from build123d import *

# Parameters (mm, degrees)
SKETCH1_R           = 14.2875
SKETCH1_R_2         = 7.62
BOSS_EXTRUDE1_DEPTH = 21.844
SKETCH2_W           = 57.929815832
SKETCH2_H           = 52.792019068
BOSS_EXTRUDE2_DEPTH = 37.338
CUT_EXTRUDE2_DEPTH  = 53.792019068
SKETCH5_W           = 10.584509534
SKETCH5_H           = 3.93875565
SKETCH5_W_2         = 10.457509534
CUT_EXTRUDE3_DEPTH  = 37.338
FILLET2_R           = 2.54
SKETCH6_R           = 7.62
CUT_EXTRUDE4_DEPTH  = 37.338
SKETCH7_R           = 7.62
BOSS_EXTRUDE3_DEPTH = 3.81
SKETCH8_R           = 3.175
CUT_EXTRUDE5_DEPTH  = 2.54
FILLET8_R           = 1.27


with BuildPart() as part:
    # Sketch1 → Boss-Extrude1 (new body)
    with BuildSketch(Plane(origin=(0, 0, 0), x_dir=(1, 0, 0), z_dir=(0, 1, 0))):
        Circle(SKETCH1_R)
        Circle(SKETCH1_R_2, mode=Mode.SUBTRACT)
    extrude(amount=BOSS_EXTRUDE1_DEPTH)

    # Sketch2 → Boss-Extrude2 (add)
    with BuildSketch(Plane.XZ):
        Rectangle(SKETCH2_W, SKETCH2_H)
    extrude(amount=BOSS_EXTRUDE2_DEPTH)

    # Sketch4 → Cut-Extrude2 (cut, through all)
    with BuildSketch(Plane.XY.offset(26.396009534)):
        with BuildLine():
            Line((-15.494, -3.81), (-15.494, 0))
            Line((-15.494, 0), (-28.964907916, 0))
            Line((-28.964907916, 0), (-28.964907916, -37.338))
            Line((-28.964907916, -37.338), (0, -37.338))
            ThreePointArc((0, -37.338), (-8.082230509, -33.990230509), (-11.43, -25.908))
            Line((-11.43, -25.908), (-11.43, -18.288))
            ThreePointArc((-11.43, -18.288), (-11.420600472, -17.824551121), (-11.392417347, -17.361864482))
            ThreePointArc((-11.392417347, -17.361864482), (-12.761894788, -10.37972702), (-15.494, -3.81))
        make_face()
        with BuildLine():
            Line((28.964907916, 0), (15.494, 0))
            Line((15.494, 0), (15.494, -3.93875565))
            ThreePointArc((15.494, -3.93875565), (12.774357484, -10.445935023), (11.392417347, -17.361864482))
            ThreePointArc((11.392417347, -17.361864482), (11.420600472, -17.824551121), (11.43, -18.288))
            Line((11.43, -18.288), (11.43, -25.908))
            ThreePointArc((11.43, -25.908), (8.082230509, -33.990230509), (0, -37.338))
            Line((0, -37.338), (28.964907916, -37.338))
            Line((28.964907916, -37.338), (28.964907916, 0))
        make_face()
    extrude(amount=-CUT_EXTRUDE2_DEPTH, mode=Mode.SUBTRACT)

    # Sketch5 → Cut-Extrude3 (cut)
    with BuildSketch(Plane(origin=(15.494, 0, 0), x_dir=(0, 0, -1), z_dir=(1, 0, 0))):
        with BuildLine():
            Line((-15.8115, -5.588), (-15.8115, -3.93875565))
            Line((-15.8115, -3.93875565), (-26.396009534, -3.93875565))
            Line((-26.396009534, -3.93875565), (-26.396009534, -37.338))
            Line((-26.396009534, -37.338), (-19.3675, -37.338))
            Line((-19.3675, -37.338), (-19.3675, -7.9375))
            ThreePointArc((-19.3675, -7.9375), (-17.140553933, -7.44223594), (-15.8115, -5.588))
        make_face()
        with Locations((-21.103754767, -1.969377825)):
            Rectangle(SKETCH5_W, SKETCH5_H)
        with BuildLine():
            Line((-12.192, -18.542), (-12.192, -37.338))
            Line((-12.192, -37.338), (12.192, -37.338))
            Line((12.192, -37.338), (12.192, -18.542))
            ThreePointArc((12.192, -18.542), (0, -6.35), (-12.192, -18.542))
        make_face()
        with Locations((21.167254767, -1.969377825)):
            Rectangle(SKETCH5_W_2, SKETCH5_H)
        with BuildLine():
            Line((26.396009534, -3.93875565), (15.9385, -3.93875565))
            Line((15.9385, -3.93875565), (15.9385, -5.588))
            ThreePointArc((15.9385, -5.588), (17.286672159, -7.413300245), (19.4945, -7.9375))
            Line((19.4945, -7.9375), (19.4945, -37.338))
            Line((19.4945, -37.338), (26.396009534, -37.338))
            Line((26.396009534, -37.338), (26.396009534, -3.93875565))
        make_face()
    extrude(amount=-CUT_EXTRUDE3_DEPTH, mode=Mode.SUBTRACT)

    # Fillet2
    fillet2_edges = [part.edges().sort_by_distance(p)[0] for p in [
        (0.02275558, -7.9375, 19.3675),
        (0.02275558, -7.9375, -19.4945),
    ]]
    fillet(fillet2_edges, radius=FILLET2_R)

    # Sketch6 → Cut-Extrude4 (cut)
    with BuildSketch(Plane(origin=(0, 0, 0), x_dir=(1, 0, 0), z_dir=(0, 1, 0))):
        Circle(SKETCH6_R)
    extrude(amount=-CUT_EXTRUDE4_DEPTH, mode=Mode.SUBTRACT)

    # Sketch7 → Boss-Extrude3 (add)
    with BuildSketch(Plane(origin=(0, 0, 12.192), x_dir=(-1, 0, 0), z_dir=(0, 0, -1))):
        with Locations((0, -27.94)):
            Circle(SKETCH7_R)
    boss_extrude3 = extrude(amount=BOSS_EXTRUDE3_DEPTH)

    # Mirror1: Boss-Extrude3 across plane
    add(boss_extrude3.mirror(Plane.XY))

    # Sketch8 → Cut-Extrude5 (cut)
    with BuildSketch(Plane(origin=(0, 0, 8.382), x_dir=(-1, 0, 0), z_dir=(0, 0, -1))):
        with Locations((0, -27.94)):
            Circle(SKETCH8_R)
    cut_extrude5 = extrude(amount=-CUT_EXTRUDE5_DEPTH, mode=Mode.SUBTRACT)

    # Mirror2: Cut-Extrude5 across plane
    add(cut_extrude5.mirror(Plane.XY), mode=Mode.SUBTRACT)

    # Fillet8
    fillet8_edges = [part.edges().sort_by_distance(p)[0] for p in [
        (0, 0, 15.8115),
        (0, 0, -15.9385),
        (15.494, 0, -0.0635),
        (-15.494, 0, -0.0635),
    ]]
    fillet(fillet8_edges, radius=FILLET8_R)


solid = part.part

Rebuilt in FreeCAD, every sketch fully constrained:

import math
import FreeCAD as App
import Part
import Sketcher
from FreeCAD import Vector
Q = App.Units.Quantity


def edges_at(feature, points):
    """Names of the edges that pass closest to the given points."""
    edges = feature.Shape.Edges
    near = lambda p: min(range(len(edges)), key=lambda i: edges[i].distToShape(Part.Vertex(*p))[0])
    return sorted({f"Edge{near(p) + 1}" for p in points})

doc = App.newDocument("Part")
body = doc.addObject("PartDesign::Body", "Body")

sketch1 = body.newObject("Sketcher::SketchObject", "Sketch")
sketch1.AttachmentSupport = (doc.getObject("XZ_Plane"), [""])
sketch1.MapMode = "FlatFace"
sketch1.addGeometry([
    Part.Circle(Vector(0, 0, 0), Vector(0, 0, 1), 14),
    Part.Circle(Vector(0, 0, 0), Vector(0, 0, 1), 8),
], False)
sketch1.addConstraint([
    Sketcher.Constraint("Coincident", 0, 3, -1, 1),
    Sketcher.Constraint("Coincident", 1, 3, -1, 1),
    Sketcher.Constraint("Diameter", 1, Q("0.6 in")),
    Sketcher.Constraint("Diameter", 0, Q("1.125 in")),
])
pad1 = body.newObject("PartDesign::Pad", "Pad")
pad1.Profile = sketch1
pad1.Length = Q("0.86 in")
pad1.Reversed = True

sketch2 = body.newObject("Sketcher::SketchObject", "Sketch001")
sketch2.AttachmentSupport = (doc.getObject("XZ_Plane"), [""])
sketch2.MapMode = "FlatFace"
sketch2.addGeometry([
    Part.LineSegment(Vector(-29, 26, 0), Vector(-29, -26, 0)),
    Part.LineSegment(Vector(-29, -26, 0), Vector(29, -26, 0)),
    Part.LineSegment(Vector(29, -26, 0), Vector(29, 26, 0)),
    Part.LineSegment(Vector(29, 26, 0), Vector(-29, 26, 0)),
], False)
sketch2.addConstraint([
    Sketcher.Constraint("Coincident", 0, 2, 1, 1),
    Sketcher.Constraint("Coincident", 1, 2, 2, 1),
    Sketcher.Constraint("Coincident", 2, 2, 3, 1),
    Sketcher.Constraint("Coincident", 3, 2, 0, 1),
    Sketcher.Constraint("Vertical", 0),
    Sketcher.Constraint("Horizontal", 1),
    Sketcher.Constraint("Vertical", 2),
    Sketcher.Constraint("Horizontal", 3),
    Sketcher.Constraint("Symmetric", 0, 2, 2, 2, -1, 1),
    Sketcher.Constraint("DistanceY", 0, 2, 0, 1, 52.792019),
    Sketcher.Constraint("DistanceX", 1, 1, 1, 2, 57.929816),
])
pad2 = body.newObject("PartDesign::Pad", "Pad001")
pad2.Profile = sketch2
pad2.Length = Q("1.47 in")

sketch3 = body.newObject("Sketcher::SketchObject", "Sketch002")
sketch3.AttachmentSupport = (doc.getObject("XY_Plane"), [""])
sketch3.MapMode = "FlatFace"
sketch3.AttachmentOffset = App.Placement(Vector(0, 0, 26.39601), App.Rotation())
sketch3.addGeometry([
    Part.LineSegment(Vector(-15.5, -3.8, 0), Vector(-15.5, 0, 0)),
    Part.LineSegment(Vector(-15.5, 0, 0), Vector(-29, 0, 0)),
    Part.LineSegment(Vector(-29, 0, 0), Vector(-29, -37.3, 0)),
    Part.LineSegment(Vector(-29, -37.3, 0), Vector(0, -37.3, 0)),
    Part.ArcOfCircle(Part.Circle(Vector(0, -25.9, 0), Vector(0, 0, 1), 11.4), math.radians(180), math.radians(270)),
    Part.LineSegment(Vector(-11.4, -25.9, 0), Vector(-11.4, -18.3, 0)),
    Part.ArcOfCircle(Part.Circle(Vector(0, -18.3, 0), Vector(0, 0, 1), 11.4), math.radians(175.35), math.radians(180)),
    Part.ArcOfCircle(Part.Circle(Vector(-46.8, -20.7, 0), Vector(0, 0, 1), 35.6), math.radians(5), math.radians(28)),
    Part.LineSegment(Vector(29, 0, 0), Vector(15.5, 0, 0)),
    Part.LineSegment(Vector(15.5, 0, 0), Vector(15.5, -3.9, 0)),
    Part.ArcOfCircle(Part.Circle(Vector(46.8, -20.8, 0), Vector(0, 0, 1), 35.6), math.radians(152), math.radians(174)),
    Part.ArcOfCircle(Part.Circle(Vector(0, -18.3, 0), Vector(0, 0, 1), 11.4), math.radians(0), math.radians(4.65)),
    Part.LineSegment(Vector(11.4, -18.3, 0), Vector(11.4, -25.9, 0)),
    Part.ArcOfCircle(Part.Circle(Vector(0, -25.9, 0), Vector(0, 0, 1), 11.4), math.radians(-90), math.radians(0)),
    Part.LineSegment(Vector(0, -37.3, 0), Vector(29, -37.3, 0)),
    Part.LineSegment(Vector(29, -37.3, 0), Vector(29, 0, 0)),
], False)
sketch3.addConstraint([
    Sketcher.Constraint("Coincident", 0, 2, 1, 1),
    Sketcher.Constraint("Coincident", 1, 2, 2, 1),
    Sketcher.Constraint("Coincident", 2, 2, 3, 1),
    Sketcher.Constraint("Tangent", 3, 2, 4, 2),
    Sketcher.Constraint("Tangent", 4, 1, 5, 1),
    Sketcher.Constraint("Tangent", 5, 2, 6, 2),
    Sketcher.Constraint("Coincident", 6, 1, 7, 1),
    Sketcher.Constraint("Coincident", 7, 2, 0, 1),
    Sketcher.Constraint("Coincident", 8, 2, 9, 1),
    Sketcher.Constraint("Coincident", 9, 2, 10, 1),
    Sketcher.Constraint("Coincident", 10, 2, 11, 2),
    Sketcher.Constraint("Tangent", 11, 1, 12, 1),
    Sketcher.Constraint("Tangent", 12, 2, 13, 2),
    Sketcher.Constraint("Tangent", 13, 1, 14, 1),
    Sketcher.Constraint("Coincident", 14, 2, 15, 1),
    Sketcher.Constraint("Coincident", 15, 2, 8, 1),
    Sketcher.Constraint("Vertical", 0),
    Sketcher.Constraint("Horizontal", 1),
    Sketcher.Constraint("Vertical", 2),
    Sketcher.Constraint("Horizontal", 3),
    Sketcher.Constraint("Vertical", 5),
    Sketcher.Constraint("Horizontal", 8),
    Sketcher.Constraint("Vertical", 9),
    Sketcher.Constraint("Vertical", 12),
    Sketcher.Constraint("Horizontal", 14),
    Sketcher.Constraint("Vertical", 15),
    Sketcher.Constraint("Coincident", 11, 3, 6, 3),
    Sketcher.Constraint("Coincident", 13, 3, 4, 3),
    Sketcher.Constraint("Equal", 4, 6),
    Sketcher.Constraint("Equal", 7, 10),
    Sketcher.Constraint("Equal", 6, 11),
    Sketcher.Constraint("Symmetric", 0, 2, 8, 2, -1, 1),
    Sketcher.Constraint("Symmetric", 6, 1, 10, 2, -2),
    Sketcher.Constraint("Symmetric", 1, 2, 15, 2, -2),
    Sketcher.Constraint("Radius", 7, Q("1.4 in")),
    Sketcher.Constraint("Radius", 4, Q("0.45 in")),
    Sketcher.Constraint("DistanceY", 5, 1, 5, 2, Q("0.3 in")),
    Sketcher.Constraint("DistanceY", 0, 1, 0, 2, Q("0.15 in")),
    Sketcher.Constraint("DistanceY", 2, 2, 2, 1, Q("1.47 in")),
    Sketcher.Constraint("DistanceX", 0, 2, -1, 1, Q("0.61 in")),
    Sketcher.Constraint("DistanceX", 1, 2, 1, 1, 13.470908),
    Sketcher.Constraint("DistanceY", 9, 2, 9, 1, 3.938756),
    Sketcher.Constraint("DistanceY", 7, 3, -1, 1, 20.680789),
])
pocket1 = body.newObject("PartDesign::Pocket", "Pocket")
pocket1.Profile = sketch3
pocket1.Type = "ThroughAll"

sketch4 = body.newObject("Sketcher::SketchObject", "Sketch003")
sketch4.AttachmentSupport = (doc.getObject("YZ_Plane"), [""])
sketch4.MapMode = "FlatFace"
sketch4.AttachmentOffset = App.Placement(Vector(0, 0, 0.61 * 25.4), App.Rotation())
sketch4.addGeometry([
    Part.LineSegment(Vector(-5.6, 15.8, 0), Vector(0, 15.8, 0)),
    Part.LineSegment(Vector(0, 15.8, 0), Vector(0, 26.4, 0)),
    Part.LineSegment(Vector(0, 26.4, 0), Vector(-37.3, 26.4, 0)),
    Part.LineSegment(Vector(-37.3, 26.4, 0), Vector(-37.3, 19.4, 0)),
    Part.LineSegment(Vector(-37.3, 19.4, 0), Vector(-7.9, 19.4, 0)),
    Part.ArcOfCircle(Part.Circle(Vector(-4.8, 18.9, 0), Vector(0, 0, 1), 3.2), math.radians(172), math.radians(255)),
    Part.LineSegment(Vector(-18.5, 12.2, 0), Vector(-37.3, 12.2, 0)),
    Part.LineSegment(Vector(-37.3, 12.2, 0), Vector(-37.3, -12.2, 0)),
    Part.LineSegment(Vector(-37.3, -12.2, 0), Vector(-18.5, -12.2, 0)),
    Part.ArcOfCircle(Part.Circle(Vector(-18.5, 0, 0), Vector(0, 0, 1), 12.2), math.radians(-90), math.radians(90)),
    Part.LineSegment(Vector(0, -15.9, 0), Vector(-5.6, -15.9, 0)),
    Part.ArcOfCircle(Part.Circle(Vector(-4.7, -19.1, 0), Vector(0, 0, 1), 3.3), math.radians(106), math.radians(187)),
    Part.LineSegment(Vector(-7.9, -19.5, 0), Vector(-37.3, -19.5, 0)),
    Part.LineSegment(Vector(-37.3, -19.5, 0), Vector(-37.3, -26.4, 0)),
    Part.LineSegment(Vector(-37.3, -26.4, 0), Vector(0, -26.4, 0)),
    Part.LineSegment(Vector(0, -26.4, 0), Vector(0, -15.9, 0)),
], False)
sketch4.addConstraint([
    Sketcher.Constraint("Coincident", 0, 2, 1, 1),
    Sketcher.Constraint("Coincident", 1, 2, 2, 1),
    Sketcher.Constraint("Coincident", 2, 2, 3, 1),
    Sketcher.Constraint("Coincident", 3, 2, 4, 1),
    Sketcher.Constraint("Coincident", 4, 2, 5, 1),
    Sketcher.Constraint("Coincident", 5, 2, 0, 1),
    Sketcher.Constraint("Coincident", 6, 2, 7, 1),
    Sketcher.Constraint("Coincident", 7, 2, 8, 1),
    Sketcher.Constraint("Tangent", 8, 2, 9, 1),
    Sketcher.Constraint("Tangent", 9, 2, 6, 1),
    Sketcher.Constraint("Coincident", 10, 2, 11, 1),
    Sketcher.Constraint("Coincident", 11, 2, 12, 1),
    Sketcher.Constraint("Coincident", 12, 2, 13, 1),
    Sketcher.Constraint("Coincident", 13, 2, 14, 1),
    Sketcher.Constraint("Coincident", 14, 2, 15, 1),
    Sketcher.Constraint("Coincident", 15, 2, 10, 1),
    Sketcher.Constraint("Horizontal", 0),
    Sketcher.Constraint("Vertical", 1),
    Sketcher.Constraint("Horizontal", 2),
    Sketcher.Constraint("Vertical", 3),
    Sketcher.Constraint("Horizontal", 4),
    Sketcher.Constraint("Horizontal", 6),
    Sketcher.Constraint("Vertical", 7),
    Sketcher.Constraint("Horizontal", 8),
    Sketcher.Constraint("Horizontal", 10),
    Sketcher.Constraint("Horizontal", 12),
    Sketcher.Constraint("Vertical", 13),
    Sketcher.Constraint("Horizontal", 14),
    Sketcher.Constraint("Vertical", 15),
    Sketcher.Constraint("Symmetric", 1, 2, 14, 2, -1, 1),
    Sketcher.Constraint("PointOnObject", 9, 3, -1),
    Sketcher.Constraint("PointOnObject", 0, 2, -2),
    Sketcher.Constraint("Vertical", 3, 2, 6, 2),
    Sketcher.Constraint("Vertical", 5, 2, 10, 2),
    Sketcher.Constraint("Vertical", 4, 2, 11, 2),
    Sketcher.Constraint("Vertical", 7, 2, 12, 2),
    Sketcher.Constraint("Radius", 9, Q("0.48 in")),
    Sketcher.Constraint("Radius", 11, Q("0.13 in")),
    Sketcher.Constraint("DistanceX", 0, 1, 0, 2, Q("0.22 in")),
    Sketcher.Constraint("DistanceX", 2, 2, 2, 1, Q("1.47 in")),
    Sketcher.Constraint("DistanceX", 6, 2, 6, 1, Q("0.74 in")),
    Sketcher.Constraint("DistanceY", 0, 2, 3, 2, Q("0.14 in")),
    Sketcher.Constraint("DistanceY", 10, 2, 5, 2, Q("1.25 in")),
    Sketcher.Constraint("DistanceY", 11, 2, 10, 2, Q("0.14 in")),
    Sketcher.Constraint("DistanceX", 4, 1, 4, 2, Q("1.1575 in")),
    Sketcher.Constraint("Radius", 5, 3.195328),
    Sketcher.Constraint("DistanceY", -1, 1, 0, 2, Q("0.6225 in")),
    Sketcher.Constraint("DistanceY", 1, 1, 1, 2, 10.58451),
])
pocket2 = body.newObject("PartDesign::Pocket", "Pocket001")
pocket2.Profile = sketch4
pocket2.Length = Q("1.47 in")
doc.recompute()

fillet = body.newObject("PartDesign::Fillet", "Fillet")
fillet.Base = (pocket2, edges_at(pocket2, [(0.023, -7.938, 19.367), (0.023, -7.938, -19.494)]))
fillet.Radius = Q("0.1 in")

sketch5 = body.newObject("Sketcher::SketchObject", "Sketch004")
sketch5.AttachmentSupport = (doc.getObject("XZ_Plane"), [""])
sketch5.MapMode = "FlatFace"
sketch5.addGeometry(Part.Circle(Vector(0, 0, 0), Vector(0, 0, 1), 8), False)
sketch5.addConstraint([
    Sketcher.Constraint("Coincident", 0, 3, -1, 1),
    Sketcher.Constraint("Diameter", 0, Q("0.6 in")),
])
pocket3 = body.newObject("PartDesign::Pocket", "Pocket002")
pocket3.Profile = sketch5
pocket3.Length = Q("1.47 in")
pocket3.Reversed = True

sketch6 = body.newObject("Sketcher::SketchObject", "Sketch005")
sketch6.AttachmentSupport = (doc.getObject("XY_Plane"), [""])
sketch6.MapMode = "FlatFace"
sketch6.AttachmentOffset = App.Placement(Vector(0, 0, 0.48 * 25.4), App.Rotation())
sketch6.addGeometry(Part.Circle(Vector(0, -28, 0), Vector(0, 0, 1), 8), False)
sketch6.addConstraint([
    Sketcher.Constraint("PointOnObject", 0, 3, -2),
    Sketcher.Constraint("Diameter", 0, Q("0.6 in")),
    Sketcher.Constraint("DistanceY", 0, 3, -1, 1, Q("1.1 in")),
])
pad3 = body.newObject("PartDesign::Pad", "Pad002")
pad3.Profile = sketch6
pad3.Length = Q("0.15 in")
pad3.Reversed = True
doc.recompute()

mirrored = body.newObject("PartDesign::Mirrored", "Mirrored")
mirrored.Originals = [pad3]
mirrored.MirrorPlane = (doc.getObject("XY_Plane"), [""])
body.Tip = mirrored

sketch7 = body.newObject("Sketcher::SketchObject", "Sketch006")
sketch7.AttachmentSupport = (doc.getObject("XY_Plane"), [""])
sketch7.MapMode = "FlatFace"
sketch7.AttachmentOffset = App.Placement(Vector(0, 0, 0.33 * 25.4), App.Rotation())
sketch7.addGeometry(Part.Circle(Vector(0, -27.9, 0), Vector(0, 0, 1), 3.2), False)
sketch7.addConstraint([
    Sketcher.Constraint("PointOnObject", 0, 3, -2),
    Sketcher.Constraint("Diameter", 0, Q("0.25 in")),
    Sketcher.Constraint("DistanceY", 0, 3, -1, 1, Q("1.1 in")),
])
pocket4 = body.newObject("PartDesign::Pocket", "Pocket003")
pocket4.Profile = sketch7
pocket4.Length = Q("0.1 in")
pocket4.Reversed = True
doc.recompute()

mirrored2 = body.newObject("PartDesign::Mirrored", "Mirrored001")
mirrored2.Originals = [pocket4]
mirrored2.MirrorPlane = (doc.getObject("XY_Plane"), [""])
body.Tip = mirrored2
doc.recompute()

fillet2 = body.newObject("PartDesign::Fillet", "Fillet001")
fillet2.Base = (mirrored2, edges_at(mirrored2, [
    (0, 0, 15.812),
    (0, 0, -15.938),
    (15.494, 0, -0.064),
    (-15.494, 0, -0.064),
]))
fillet2.Radius = Q("0.05 in")

doc.recompute()
